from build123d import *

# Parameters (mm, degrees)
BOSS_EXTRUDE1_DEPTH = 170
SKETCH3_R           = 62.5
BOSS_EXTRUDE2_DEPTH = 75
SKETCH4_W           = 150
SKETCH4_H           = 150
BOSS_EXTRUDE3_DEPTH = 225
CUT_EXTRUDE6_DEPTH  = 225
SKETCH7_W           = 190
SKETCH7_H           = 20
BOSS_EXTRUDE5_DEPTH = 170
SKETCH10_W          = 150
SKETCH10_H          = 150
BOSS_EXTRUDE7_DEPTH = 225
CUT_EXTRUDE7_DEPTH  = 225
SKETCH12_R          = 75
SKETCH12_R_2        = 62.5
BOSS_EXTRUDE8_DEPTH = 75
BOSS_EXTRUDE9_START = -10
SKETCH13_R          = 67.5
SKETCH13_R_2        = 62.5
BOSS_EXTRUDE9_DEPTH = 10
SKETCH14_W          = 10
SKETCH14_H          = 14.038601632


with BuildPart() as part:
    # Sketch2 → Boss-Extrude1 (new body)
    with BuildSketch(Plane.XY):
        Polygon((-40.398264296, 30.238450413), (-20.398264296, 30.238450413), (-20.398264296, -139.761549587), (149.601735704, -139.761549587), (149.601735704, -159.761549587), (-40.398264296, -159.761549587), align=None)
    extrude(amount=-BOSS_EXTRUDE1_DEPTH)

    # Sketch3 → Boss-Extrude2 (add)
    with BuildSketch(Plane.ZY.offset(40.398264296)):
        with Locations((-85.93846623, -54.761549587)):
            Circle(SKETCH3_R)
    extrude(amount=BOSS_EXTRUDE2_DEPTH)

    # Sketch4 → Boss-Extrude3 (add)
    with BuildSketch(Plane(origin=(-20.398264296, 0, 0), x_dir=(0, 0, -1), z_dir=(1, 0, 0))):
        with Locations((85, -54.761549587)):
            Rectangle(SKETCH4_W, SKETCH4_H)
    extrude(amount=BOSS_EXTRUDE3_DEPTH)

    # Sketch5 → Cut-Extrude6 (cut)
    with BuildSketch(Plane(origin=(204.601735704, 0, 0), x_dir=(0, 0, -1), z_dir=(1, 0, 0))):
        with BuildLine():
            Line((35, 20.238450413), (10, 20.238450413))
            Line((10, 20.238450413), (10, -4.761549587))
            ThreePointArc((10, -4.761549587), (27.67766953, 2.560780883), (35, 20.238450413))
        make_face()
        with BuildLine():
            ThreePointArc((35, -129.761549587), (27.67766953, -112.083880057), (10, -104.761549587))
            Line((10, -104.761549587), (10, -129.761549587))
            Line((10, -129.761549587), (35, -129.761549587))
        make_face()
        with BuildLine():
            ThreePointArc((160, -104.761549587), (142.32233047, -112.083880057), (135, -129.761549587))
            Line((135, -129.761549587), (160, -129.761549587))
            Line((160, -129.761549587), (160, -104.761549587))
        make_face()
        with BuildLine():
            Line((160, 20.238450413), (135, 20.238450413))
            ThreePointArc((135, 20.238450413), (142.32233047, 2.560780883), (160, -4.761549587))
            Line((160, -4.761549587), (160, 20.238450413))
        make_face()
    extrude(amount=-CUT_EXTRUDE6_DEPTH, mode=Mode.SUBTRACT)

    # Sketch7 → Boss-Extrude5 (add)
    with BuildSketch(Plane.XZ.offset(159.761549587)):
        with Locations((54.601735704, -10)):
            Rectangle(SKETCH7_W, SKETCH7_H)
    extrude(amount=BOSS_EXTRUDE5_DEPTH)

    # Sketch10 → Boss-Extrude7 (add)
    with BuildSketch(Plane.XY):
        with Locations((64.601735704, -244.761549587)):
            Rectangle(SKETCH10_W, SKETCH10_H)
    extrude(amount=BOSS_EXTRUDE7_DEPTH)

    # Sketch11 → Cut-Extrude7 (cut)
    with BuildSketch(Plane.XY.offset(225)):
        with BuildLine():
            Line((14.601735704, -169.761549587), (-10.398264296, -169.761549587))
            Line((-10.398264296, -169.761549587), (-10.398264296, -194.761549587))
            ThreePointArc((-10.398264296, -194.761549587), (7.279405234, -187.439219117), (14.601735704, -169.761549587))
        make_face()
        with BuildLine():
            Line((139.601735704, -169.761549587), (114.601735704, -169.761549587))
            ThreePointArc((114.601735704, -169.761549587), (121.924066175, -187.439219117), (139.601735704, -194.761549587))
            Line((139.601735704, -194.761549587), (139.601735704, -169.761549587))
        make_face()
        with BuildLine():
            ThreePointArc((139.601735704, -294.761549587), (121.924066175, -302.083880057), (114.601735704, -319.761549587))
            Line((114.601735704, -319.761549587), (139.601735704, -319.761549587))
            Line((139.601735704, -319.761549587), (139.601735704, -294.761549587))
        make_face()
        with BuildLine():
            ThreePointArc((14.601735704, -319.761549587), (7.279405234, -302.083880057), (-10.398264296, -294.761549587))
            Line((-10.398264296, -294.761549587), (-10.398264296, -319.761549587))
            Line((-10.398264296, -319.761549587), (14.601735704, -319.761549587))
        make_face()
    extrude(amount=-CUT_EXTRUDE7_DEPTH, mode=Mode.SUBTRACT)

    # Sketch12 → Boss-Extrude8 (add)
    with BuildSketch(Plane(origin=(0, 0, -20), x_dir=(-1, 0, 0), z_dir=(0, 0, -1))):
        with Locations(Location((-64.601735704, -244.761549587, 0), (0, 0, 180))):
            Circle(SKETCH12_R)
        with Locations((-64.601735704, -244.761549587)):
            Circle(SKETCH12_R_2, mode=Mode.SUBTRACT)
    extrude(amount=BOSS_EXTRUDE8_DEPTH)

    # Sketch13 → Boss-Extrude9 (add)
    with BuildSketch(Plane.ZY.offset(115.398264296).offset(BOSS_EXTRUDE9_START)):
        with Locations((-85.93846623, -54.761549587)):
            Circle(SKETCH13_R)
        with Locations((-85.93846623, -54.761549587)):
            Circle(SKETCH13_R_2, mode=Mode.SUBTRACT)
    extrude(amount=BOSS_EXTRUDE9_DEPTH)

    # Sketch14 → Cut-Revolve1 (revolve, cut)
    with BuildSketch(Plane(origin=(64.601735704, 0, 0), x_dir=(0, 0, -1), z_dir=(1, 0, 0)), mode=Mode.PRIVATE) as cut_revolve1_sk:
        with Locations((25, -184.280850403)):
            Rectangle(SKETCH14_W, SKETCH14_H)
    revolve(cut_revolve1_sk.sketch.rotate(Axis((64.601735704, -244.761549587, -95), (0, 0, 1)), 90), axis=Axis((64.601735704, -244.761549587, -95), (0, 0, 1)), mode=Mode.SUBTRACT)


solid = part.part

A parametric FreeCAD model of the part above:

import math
import FreeCAD as App
import Part
import Sketcher

doc = App.newDocument("Part")
body = doc.addObject("PartDesign::Body", "Body")

# Sketch on XY plane
sketch1 = body.newObject("Sketcher::SketchObject", "Sketch")
sketch1.AttachmentSupport = (doc.getObject("XY_Plane"), [""])
sketch1.MapMode = "FlatFace"
sketch1.addGeometry(Part.LineSegment(App.Vector(-20, 30, 0), App.Vector(-40, 30, 0)), False)
sketch1.addGeometry(Part.LineSegment(App.Vector(-40, 30, 0), App.Vector(-40, -160, 0)), False)
sketch1.addGeometry(Part.LineSegment(App.Vector(-40, -160, 0), App.Vector(150, -160, 0)), False)
sketch1.addGeometry(Part.LineSegment(App.Vector(150, -160, 0), App.Vector(150, -140, 0)), False)
sketch1.addGeometry(Part.LineSegment(App.Vector(150, -140, 0), App.Vector(-20, -140, 0)), False)
sketch1.addGeometry(Part.LineSegment(App.Vector(-20, -140, 0), App.Vector(-20, 30, 0)), False)
sketch1.addConstraint(Sketcher.Constraint("Coincident", 0, 2, 1, 1))
sketch1.addConstraint(Sketcher.Constraint("Coincident", 1, 2, 2, 1))
sketch1.addConstraint(Sketcher.Constraint("Coincident", 2, 2, 3, 1))
sketch1.addConstraint(Sketcher.Constraint("Coincident", 3, 2, 4, 1))
sketch1.addConstraint(Sketcher.Constraint("Coincident", 4, 2, 5, 1))
sketch1.addConstraint(Sketcher.Constraint("Coincident", 5, 2, 0, 1))
sketch1.addConstraint(Sketcher.Constraint("Horizontal", 0))
sketch1.addConstraint(Sketcher.Constraint("Vertical", 1))
sketch1.addConstraint(Sketcher.Constraint("Horizontal", 2))
sketch1.addConstraint(Sketcher.Constraint("Vertical", 3))
sketch1.addConstraint(Sketcher.Constraint("Horizontal", 4))
sketch1.addConstraint(Sketcher.Constraint("Vertical", 5))
sketch1.addConstraint(Sketcher.Constraint("Equal", 2, 1))
sketch1.addConstraint(Sketcher.Constraint("Equal", 0, 3))
sketch1.addConstraint(Sketcher.Constraint("DistanceX", 0, 2, 0, 1, 20.0))
sketch1.addConstraint(Sketcher.Constraint("DistanceX", 2, 1, 2, 2, 190.0))
sketch1.addConstraint(Sketcher.Constraint("DistanceY", -1, 1, 0, 2, 30.23845))
sketch1.addConstraint(Sketcher.Constraint("DistanceX", 0, 2, -1, 1, 40.398264))
pad1 = body.newObject("PartDesign::Pad", "Pad")
pad1.Profile = sketch1
pad1.Length = 170
pad1.Reversed = True

# Sketch on YZ plane
sketch2 = body.newObject("Sketcher::SketchObject", "Sketch001")
sketch2.AttachmentSupport = (doc.getObject("YZ_Plane"), [""])
sketch2.MapMode = "FlatFace"
sketch2.AttachmentOffset = App.Placement(App.Vector(0, 0, -40.398264), App.Rotation())
sketch2.addGeometry(Part.Circle(App.Vector(-55, -86, 0), App.Vector(0, 0, 1), 62), False)
sketch2.addConstraint(Sketcher.Constraint("Diameter", 0, 125.0))
sketch2.addConstraint(Sketcher.Constraint("DistanceX", 0, 3, -1, 1, 54.76155))
sketch2.addConstraint(Sketcher.Constraint("DistanceY", 0, 3, -1, 1, 85.938466))
pad2 = body.newObject("PartDesign::Pad", "Pad001")
pad2.Profile = sketch2
pad2.Length = 75
pad2.Reversed = True

# Sketch on YZ plane
sketch3 = body.newObject("Sketcher::SketchObject", "Sketch002")
sketch3.AttachmentSupport = (doc.getObject("YZ_Plane"), [""])
sketch3.MapMode = "FlatFace"
sketch3.AttachmentOffset = App.Placement(App.Vector(0, 0, -20.398264), App.Rotation())
sketch3.addGeometry(Part.LineSegment(App.Vector(20, -10, 0), App.Vector(-130, -10, 0)), False)
sketch3.addGeometry(Part.LineSegment(App.Vector(-130, -10, 0), App.Vector(-130, -160, 0)), False)
sketch3.addGeometry(Part.LineSegment(App.Vector(-130, -160, 0), App.Vector(20, -160, 0)), False)
sketch3.addGeometry(Part.LineSegment(App.Vector(20, -160, 0), App.Vector(20, -10, 0)), False)
sketch3.addConstraint(Sketcher.Constraint("Coincident", 0, 2, 1, 1))
sketch3.addConstraint(Sketcher.Constraint("Coincident", 1, 2, 2, 1))
sketch3.addConstraint(Sketcher.Constraint("Coincident", 2, 2, 3, 1))
sketch3.addConstraint(Sketcher.Constraint("Coincident", 3, 2, 0, 1))
sketch3.addConstraint(Sketcher.Constraint("Horizontal", 0))
sketch3.addConstraint(Sketcher.Constraint("Vertical", 1))
sketch3.addConstraint(Sketcher.Constraint("Horizontal", 2))
sketch3.addConstraint(Sketcher.Constraint("Vertical", 3))
sketch3.addConstraint(Sketcher.Constraint("Equal", 2, 1))
sketch3.addConstraint(Sketcher.Constraint("DistanceX", 0, 2, 0, 1, 150.0))
sketch3.addConstraint(Sketcher.Constraint("DistanceY", 0, 2, -1, 1, 10.0))
sketch3.addConstraint(Sketcher.Constraint("DistanceX", 0, 2, -1, 1, 129.76155))
pad3 = body.newObject("PartDesign::Pad", "Pad002")
pad3.Profile = sketch3
pad3.Length = 225

# Sketch on YZ plane
sketch4 = body.newObject("Sketcher::SketchObject", "Sketch003")
sketch4.AttachmentSupport = (doc.getObject("YZ_Plane"), [""])
sketch4.MapMode = "FlatFace"
sketch4.AttachmentOffset = App.Placement(App.Vector(0, 0, 204.601736), App.Rotation())
sketch4.addGeometry(Part.LineSegment(App.Vector(20, -35, 0), App.Vector(20, -10, 0)), False)
sketch4.addGeometry(Part.LineSegment(App.Vector(20, -10, 0), App.Vector(-5, -10, 0)), False)
sketch4.addGeometry(Part.ArcOfCircle(Part.Circle(App.Vector(20, -10, 0), App.Vector(0, 0, 1), 25), math.radians(180), math.radians(270)), False)
sketch4.addGeometry(Part.ArcOfCircle(Part.Circle(App.Vector(-130, -10, 0), App.Vector(0, 0, 1), 25), math.radians(-90), math.radians(0)), False)
sketch4.addGeometry(Part.LineSegment(App.Vector(-105, -10, 0), App.Vector(-130, -10, 0)), False)
sketch4.addGeometry(Part.LineSegment(App.Vector(-130, -10, 0), App.Vector(-130, -35, 0)), False)
sketch4.addGeometry(Part.ArcOfCircle(Part.Circle(App.Vector(-130, -160, 0), App.Vector(0, 0, 1), 25), math.radians(0), math.radians(90)), False)
sketch4.addGeometry(Part.LineSegment(App.Vector(-130, -135, 0), App.Vector(-130, -160, 0)), False)
sketch4.addGeometry(Part.LineSegment(App.Vector(-130, -160, 0), App.Vector(-105, -160, 0)), False)
sketch4.addGeometry(Part.LineSegment(App.Vector(20, -160, 0), App.Vector(20, -135, 0)), False)
sketch4.addGeometry(Part.ArcOfCircle(Part.Circle(App.Vector(20, -160, 0), App.Vector(0, 0, 1), 25), math.radians(90), math.radians(180)), False)
sketch4.addGeometry(Part.LineSegment(App.Vector(-5, -160, 0), App.Vector(20, -160, 0)), False)
sketch4.addConstraint(Sketcher.Constraint("Coincident", 0, 2, 1, 1))
sketch4.addConstraint(Sketcher.Constraint("Coincident", 1, 2, 2, 1))
sketch4.addConstraint(Sketcher.Constraint("Coincident", 2, 2, 0, 1))
sketch4.addConstraint(Sketcher.Constraint("Coincident", 3, 2, 4, 1))
sketch4.addConstraint(Sketcher.Constraint("Coincident", 4, 2, 5, 1))
sketch4.addConstraint(Sketcher.Constraint("Coincident", 5, 2, 3, 1))
sketch4.addConstraint(Sketcher.Constraint("Coincident", 6, 2, 7, 1))
sketch4.addConstraint(Sketcher.Constraint("Coincident", 7, 2, 8, 1))
sketch4.addConstraint(Sketcher.Constraint("Coincident", 8, 2, 6, 1))
sketch4.addConstraint(Sketcher.Constraint("Coincident", 9, 2, 10, 1))
sketch4.addConstraint(Sketcher.Constraint("Coincident", 10, 2, 11, 1))
sketch4.addConstraint(Sketcher.Constraint("Coincident", 11, 2, 9, 1))
sketch4.addConstraint(Sketcher.Constraint("Vertical", 0))
sketch4.addConstraint(Sketcher.Constraint("Horizontal", 1))
sketch4.addConstraint(Sketcher.Constraint("Horizontal", 4))
sketch4.addConstraint(Sketcher.Constraint("Vertical", 5))
sketch4.addConstraint(Sketcher.Constraint("Vertical", 7))
sketch4.addConstraint(Sketcher.Constraint("Horizontal", 8))
sketch4.addConstraint(Sketcher.Constraint("Vertical", 9))
sketch4.addConstraint(Sketcher.Constraint("Horizontal", 11))
sketch4.addConstraint(Sketcher.Constraint("Coincident", 0, 2, 2, 3))
sketch4.addConstraint(Sketcher.Constraint("Coincident", 4, 2, 3, 3))
sketch4.addConstraint(Sketcher.Constraint("Coincident", 7, 2, 6, 3))
sketch4.addConstraint(Sketcher.Constraint("Coincident", 11, 2, 10, 3))
sketch4.addConstraint(Sketcher.Constraint("Equal", 2, 3))
sketch4.addConstraint(Sketcher.Constraint("Equal", 3, 6))
sketch4.addConstraint(Sketcher.Constraint("Equal", 6, 10))
sketch4.addConstraint(Sketcher.Constraint("Horizontal", 2, 3, 3, 3))
sketch4.addConstraint(Sketcher.Constraint("Horizontal", 6, 3, 10, 3))
sketch4.addConstraint(Sketcher.Constraint("Vertical", 3, 3, 6, 3))
sketch4.addConstraint(Sketcher.Constraint("Vertical", 2, 3, 10, 3))
sketch4.addConstraint(Sketcher.Constraint("Radius", 2, 25.0))
sketch4.addConstraint(Sketcher.Constraint("DistanceY", 2, 3, -1, 1, 10.0))
sketch4.addConstraint(Sketcher.Constraint("DistanceY", 6, 3, -1, 1, 160.0))
sketch4.addConstraint(Sketcher.Constraint("DistanceX", 3, 3, 2, 3, 150.0))
sketch4.addConstraint(Sketcher.Constraint("DistanceX", -1, 1, 2, 3, 20.23845))
pocket1 = body.newObject("PartDesign::Pocket", "Pocket")
pocket1.Profile = sketch4
pocket1.Length = 225

# Sketch on XZ plane
sketch5 = body.newObject("Sketcher::SketchObject", "Sketch004")
sketch5.AttachmentSupport = (doc.getObject("XZ_Plane"), [""])
sketch5.MapMode = "FlatFace"
sketch5.AttachmentOffset = App.Placement(App.Vector(0, 0, 159.76155), App.Rotation())
sketch5.addGeometry(Part.LineSegment(App.Vector(-40, 0, 0), App.Vector(-40, -20, 0)), False)
sketch5.addGeometry(Part.LineSegment(App.Vector(-40, -20, 0), App.Vector(150, -20, 0)), False)
sketch5.addGeometry(Part.LineSegment(App.Vector(150, -20, 0), App.Vector(150, 0, 0)), False)
sketch5.addGeometry(Part.LineSegment(App.Vector(150, 0, 0), App.Vector(-40, 0, 0)), False)
sketch5.addConstraint(Sketcher.Constraint("Coincident", 0, 2, 1, 1))
sketch5.addConstraint(Sketcher.Constraint("Coincident", 1, 2, 2, 1))
sketch5.addConstraint(Sketcher.Constraint("Coincident", 2, 2, 3, 1))
sketch5.addConstraint(Sketcher.Constraint("Coincident", 3, 2, 0, 1))
sketch5.addConstraint(Sketcher.Constraint("Vertical", 0))
sketch5.addConstraint(Sketcher.Constraint("Horizontal", 1))
sketch5.addConstraint(Sketcher.Constraint("Vertical", 2))
sketch5.addConstraint(Sketcher.Constraint("Horizontal", 3))
sketch5.addConstraint(Sketcher.Constraint("PointOnObject", 2, 2, -1))
sketch5.addConstraint(Sketcher.Constraint("DistanceX", 1, 1, 1, 2, 190.0))
sketch5.addConstraint(Sketcher.Constraint("DistanceY", 0, 2, 0, 1, 20.0))
sketch5.addConstraint(Sketcher.Constraint("DistanceX", 0, 2, -1, 1, 40.398264))
pad4 = body.newObject("PartDesign::Pad", "Pad003")
pad4.Profile = sketch5
pad4.Length = 170

# Sketch on XY plane
sketch6 = body.newObject("Sketcher::SketchObject", "Sketch005")
sketch6.AttachmentSupport = (doc.getObject("XY_Plane"), [""])
sketch6.MapMode = "FlatFace"
sketch6.addGeometry(Part.LineSegment(App.Vector(-10, -170, 0), App.Vector(-10, -320, 0)), False)
sketch6.addGeometry(Part.LineSegment(App.Vector(-10, -320, 0), App.Vector(140, -320, 0)), False)
sketch6.addGeometry(Part.LineSegment(App.Vector(140, -320, 0), App.Vector(140, -170, 0)), False)
sketch6.addGeometry(Part.LineSegment(App.Vector(140, -170, 0), App.Vector(-10, -170, 0)), False)
sketch6.addConstraint(Sketcher.Constraint("Coincident", 0, 2, 1, 1))
sketch6.addConstraint(Sketcher.Constraint("Coincident", 1, 2, 2, 1))
sketch6.addConstraint(Sketcher.Constraint("Coincident", 2, 2, 3, 1))
sketch6.addConstraint(Sketcher.Constraint("Coincident", 3, 2, 0, 1))
sketch6.addConstraint(Sketcher.Constraint("Vertical", 0))
sketch6.addConstraint(Sketcher.Constraint("Horizontal", 1))
sketch6.addConstraint(Sketcher.Constraint("Vertical", 2))
sketch6.addConstraint(Sketcher.Constraint("Horizontal", 3))
sketch6.addConstraint(Sketcher.Constraint("Equal", 3, 0))
sketch6.addConstraint(Sketcher.Constraint("DistanceX", 1, 1, 1, 2, 150.0))
sketch6.addConstraint(Sketcher.Constraint("DistanceY", 0, 2, -1, 1, 319.76155))
sketch6.addConstraint(Sketcher.Constraint("DistanceX", 0, 2, -1, 1, 10.398264))
pad5 = body.newObject("PartDesign::Pad", "Pad004")
pad5.Profile = sketch6
pad5.Length = 225

# Sketch on XY plane
sketch7 = body.newObject("Sketcher::SketchObject", "Sketch006")
sketch7.AttachmentSupport = (doc.getObject("XY_Plane"), [""])
sketch7.MapMode = "FlatFace"
sketch7.AttachmentOffset = App.Placement(App.Vector(0, 0, 225), App.Rotation())
sketch7.addGeometry(Part.LineSegment(App.Vector(15, -170, 0), App.Vector(-10, -170, 0)), False)
sketch7.addGeometry(Part.LineSegment(App.Vector(-10, -170, 0), App.Vector(-10, -195, 0)), False)
sketch7.addGeometry(Part.ArcOfCircle(Part.Circle(App.Vector(-10, -170, 0), App.Vector(0, 0, 1), 25), math.radians(-90), math.radians(0)), False)
sketch7.addGeometry(Part.LineSegment(App.Vector(140, -170, 0), App.Vector(115, -170, 0)), False)
sketch7.addGeometry(Part.ArcOfCircle(Part.Circle(App.Vector(140, -170, 0), App.Vector(0, 0, 1), 25), math.radians(-180), math.radians(-90)), False)
sketch7.addGeometry(Part.LineSegment(App.Vector(140, -195, 0), App.Vector(140, -170, 0)), False)
sketch7.addGeometry(Part.ArcOfCircle(Part.Circle(App.Vector(140, -320, 0), App.Vector(0, 0, 1), 25), math.radians(90), math.radians(180)), False)
sketch7.addGeometry(Part.LineSegment(App.Vector(115, -320, 0), App.Vector(140, -320, 0)), False)
sketch7.addGeometry(Part.LineSegment(App.Vector(140, -320, 0), App.Vector(140, -295, 0)), False)
sketch7.addGeometry(Part.ArcOfCircle(Part.Circle(App.Vector(-10, -320, 0), App.Vector(0, 0, 1), 25), math.radians(0), math.radians(90)), False)
sketch7.addGeometry(Part.LineSegment(App.Vector(-10, -295, 0), App.Vector(-10, -320, 0)), False)
sketch7.addGeometry(Part.LineSegment(App.Vector(-10, -320, 0), App.Vector(15, -320, 0)), False)
sketch7.addConstraint(Sketcher.Constraint("Coincident", 0, 2, 1, 1))
sketch7.addConstraint(Sketcher.Constraint("Coincident", 1, 2, 2, 1))
sketch7.addConstraint(Sketcher.Constraint("Coincident", 2, 2, 0, 1))
sketch7.addConstraint(Sketcher.Constraint("Coincident", 3, 2, 4, 1))
sketch7.addConstraint(Sketcher.Constraint("Coincident", 4, 2, 5, 1))
sketch7.addConstraint(Sketcher.Constraint("Coincident", 5, 2, 3, 1))
sketch7.addConstraint(Sketcher.Constraint("Coincident", 6, 2, 7, 1))
sketch7.addConstraint(Sketcher.Constraint("Coincident", 7, 2, 8, 1))
sketch7.addConstraint(Sketcher.Constraint("Coincident", 8, 2, 6, 1))
sketch7.addConstraint(Sketcher.Constraint("Coincident", 9, 2, 10, 1))
sketch7.addConstraint(Sketcher.Constraint("Coincident", 10, 2, 11, 1))
sketch7.addConstraint(Sketcher.Constraint("Coincident", 11, 2, 9, 1))
sketch7.addConstraint(Sketcher.Constraint("Horizontal", 0))
sketch7.addConstraint(Sketcher.Constraint("Vertical", 1))
sketch7.addConstraint(Sketcher.Constraint("Horizontal", 3))
sketch7.addConstraint(Sketcher.Constraint("Vertical", 5))
sketch7.addConstraint(Sketcher.Constraint("Horizontal", 7))
sketch7.addConstraint(Sketcher.Constraint("Vertical", 8))
sketch7.addConstraint(Sketcher.Constraint("Vertical", 10))
sketch7.addConstraint(Sketcher.Constraint("Horizontal", 11))
sketch7.addConstraint(Sketcher.Constraint("Coincident", 0, 2, 2, 3))
sketch7.addConstraint(Sketcher.Constraint("Coincident", 5, 2, 4, 3))
sketch7.addConstraint(Sketcher.Constraint("Coincident", 7, 2, 6, 3))
sketch7.addConstraint(Sketcher.Constraint("Coincident", 10, 2, 9, 3))
sketch7.addConstraint(Sketcher.Constraint("Equal", 2, 4))
sketch7.addConstraint(Sketcher.Constraint("Equal", 4, 6))
sketch7.addConstraint(Sketcher.Constraint("Equal", 6, 9))
sketch7.addConstraint(Sketcher.Constraint("Horizontal", 2, 3, 4, 3))
sketch7.addConstraint(Sketcher.Constraint("Horizontal", 6, 3, 9, 3))
sketch7.addConstraint(Sketcher.Constraint("Vertical", 4, 3, 6, 3))
sketch7.addConstraint(Sketcher.Constraint("Vertical", 2, 3, 9, 3))
sketch7.addConstraint(Sketcher.Constraint("Radius", 2, 25.0))
sketch7.addConstraint(Sketcher.Constraint("DistanceX", 2, 3, 4, 3, 150.0))
sketch7.addConstraint(Sketcher.Constraint("DistanceY", 6, 3, 4, 3, 150.0))
sketch7.addConstraint(Sketcher.Constraint("DistanceY", 2, 3, -1, 1, 169.76155))
sketch7.addConstraint(Sketcher.Constraint("DistanceX", 2, 3, -1, 1, 10.398264))
pocket2 = body.newObject("PartDesign::Pocket", "Pocket001")
pocket2.Profile = sketch7
pocket2.Length = 225

# Sketch on XY plane
sketch8 = body.newObject("Sketcher::SketchObject", "Sketch007")
sketch8.AttachmentSupport = (doc.getObject("XY_Plane"), [""])
sketch8.MapMode = "FlatFace"
sketch8.AttachmentOffset = App.Placement(App.Vector(0, 0, -20), App.Rotation())
sketch8.addGeometry(Part.Circle(App.Vector(65, -245, 0), App.Vector(0, 0, 1), 75), False)
sketch8.addGeometry(Part.Circle(App.Vector(65, -245, 0), App.Vector(0, 0, 1), 62), False)
sketch8.addConstraint(Sketcher.Constraint("Coincident", 1, 3, 0, 3))
sketch8.addConstraint(Sketcher.Constraint("Diameter", 0, 150.0))
sketch8.addConstraint(Sketcher.Constraint("Diameter", 1, 125.0))
sketch8.addConstraint(Sketcher.Constraint("DistanceY", 0, 3, -1, 1, 244.76155))
sketch8.addConstraint(Sketcher.Constraint("DistanceX", -1, 1, 0, 3, 64.601736))
pad6 = body.newObject("PartDesign::Pad", "Pad005")
pad6.Profile = sketch8
pad6.Length = 75
pad6.Reversed = True

# Sketch on YZ plane
sketch9 = body.newObject("Sketcher::SketchObject", "Sketch008")
sketch9.AttachmentSupport = (doc.getObject("YZ_Plane"), [""])
sketch9.MapMode = "FlatFace"
sketch9.AttachmentOffset = App.Placement(App.Vector(0, 0, -105.398264), App.Rotation())
sketch9.addGeometry(Part.Circle(App.Vector(-55, -86, 0), App.Vector(0, 0, 1), 68), False)
sketch9.addGeometry(Part.Circle(App.Vector(-55, -86, 0), App.Vector(0, 0, 1), 62), False)
sketch9.addConstraint(Sketcher.Constraint("Coincident", 1, 3, 0, 3))
sketch9.addConstraint(Sketcher.Constraint("Diameter", 0, 135.0))
sketch9.addConstraint(Sketcher.Constraint("Diameter", 1, 125.0))
sketch9.addConstraint(Sketcher.Constraint("DistanceX", 0, 3, -1, 1, 54.76155))
sketch9.addConstraint(Sketcher.Constraint("DistanceY", 0, 3, -1, 1, 85.938466))
pad7 = body.newObject("PartDesign::Pad", "Pad006")
pad7.Profile = sketch9
pad7.Length = 10
pad7.Reversed = True

# Sketch on YZ plane
sketch10 = body.newObject("Sketcher::SketchObject", "Sketch009")
sketch10.AttachmentSupport = (doc.getObject("YZ_Plane"), [""])
sketch10.MapMode = "FlatFace"
sketch10.AttachmentOffset = App.Placement(App.Vector(0, 0, 64.601736), App.Rotation())
sketch10.addGeometry(Part.LineSegment(App.Vector(-177, -20, 0), App.Vector(-191, -20, 0)), False)
sketch10.addGeometry(Part.LineSegment(App.Vector(-191, -20, 0), App.Vector(-191, -30, 0)), False)
sketch10.addGeometry(Part.LineSegment(App.Vector(-191, -30, 0), App.Vector(-177, -30, 0)), False)
sketch10.addGeometry(Part.LineSegment(App.Vector(-177, -30, 0), App.Vector(-177, -20, 0)), False)
sketch10.addGeometry(Part.LineSegment(App.Vector(-245, -30, 0), App.Vector(-245, -20, 0)), True)  # axis
sketch10.addConstraint(Sketcher.Constraint("Coincident", 0, 2, 1, 1))
sketch10.addConstraint(Sketcher.Constraint("Coincident", 1, 2, 2, 1))
sketch10.addConstraint(Sketcher.Constraint("Coincident", 2, 2, 3, 1))
sketch10.addConstraint(Sketcher.Constraint("Coincident", 3, 2, 0, 1))
sketch10.addConstraint(Sketcher.Constraint("Horizontal", 0))
sketch10.addConstraint(Sketcher.Constraint("Vertical", 1))
sketch10.addConstraint(Sketcher.Constraint("Horizontal", 2))
sketch10.addConstraint(Sketcher.Constraint("Vertical", 3))
sketch10.addConstraint(Sketcher.Constraint("Vertical", 4))
sketch10.addConstraint(Sketcher.Constraint("Horizontal", 2, 2, 4, 1))
sketch10.addConstraint(Sketcher.Constraint("Horizontal", 3, 2, 4, 2))
sketch10.addConstraint(Sketcher.Constraint("DistanceY", 1, 2, 1, 1, 10.0))
sketch10.addConstraint(Sketcher.Constraint("DistanceY", 0, 2, -1, 1, 20.0))
sketch10.addConstraint(Sketcher.Constraint("DistanceX", 4, 1, 2, 2, 67.5))
sketch10.addConstraint(Sketcher.Constraint("DistanceX", 0, 2, 0, 1, 14.038602))
sketch10.addConstraint(Sketcher.Constraint("DistanceX", 0, 2, -1, 1, 191.300151))
groove = body.newObject("PartDesign::Groove", "Groove")
groove.Profile = sketch10
groove.ReferenceAxis = (sketch10, ["Axis0"])
groove.Angle = 360

doc.recompute()
